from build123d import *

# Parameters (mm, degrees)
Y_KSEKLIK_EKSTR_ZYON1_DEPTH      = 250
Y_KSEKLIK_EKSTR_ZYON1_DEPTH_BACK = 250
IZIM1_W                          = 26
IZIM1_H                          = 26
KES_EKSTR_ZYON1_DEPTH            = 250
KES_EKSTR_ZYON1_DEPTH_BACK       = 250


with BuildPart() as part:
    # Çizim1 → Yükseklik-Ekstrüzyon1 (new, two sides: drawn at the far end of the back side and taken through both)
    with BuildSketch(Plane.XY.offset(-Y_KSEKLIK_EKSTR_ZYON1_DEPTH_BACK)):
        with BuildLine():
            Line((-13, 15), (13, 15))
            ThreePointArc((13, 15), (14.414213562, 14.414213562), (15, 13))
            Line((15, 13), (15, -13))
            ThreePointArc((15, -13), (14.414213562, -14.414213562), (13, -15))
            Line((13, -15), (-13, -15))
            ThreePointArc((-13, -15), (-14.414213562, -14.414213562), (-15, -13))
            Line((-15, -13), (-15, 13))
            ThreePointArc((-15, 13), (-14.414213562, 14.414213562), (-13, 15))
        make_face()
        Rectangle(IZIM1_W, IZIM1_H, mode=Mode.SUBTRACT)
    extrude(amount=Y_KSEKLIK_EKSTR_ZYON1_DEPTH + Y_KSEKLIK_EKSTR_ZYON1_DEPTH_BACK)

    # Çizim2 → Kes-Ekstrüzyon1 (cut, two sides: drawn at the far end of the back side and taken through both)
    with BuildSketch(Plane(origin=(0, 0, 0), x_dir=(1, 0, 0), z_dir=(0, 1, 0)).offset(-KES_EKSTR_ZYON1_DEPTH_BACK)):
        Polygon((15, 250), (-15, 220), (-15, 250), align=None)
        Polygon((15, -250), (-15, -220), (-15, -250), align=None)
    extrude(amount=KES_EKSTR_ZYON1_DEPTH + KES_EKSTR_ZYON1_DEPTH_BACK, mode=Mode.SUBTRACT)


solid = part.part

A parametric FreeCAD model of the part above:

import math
import FreeCAD as App
import Part
import Sketcher
from FreeCAD import Vector


def add_polygon(sketch, points):
    """Adds a closed chain of lines whose ends are joined by coincident constraints."""
    first, n = sketch.GeometryCount, len(points)
    for a, b in zip(points, points[1:] + points[:1]):
        sketch.addGeometry(Part.LineSegment(App.Vector(*a, 0), App.Vector(*b, 0)), False)
    for i in range(n):
        sketch.addConstraint(Sketcher.Constraint("Coincident", first + i, 2, first + (i + 1) % n, 1))

doc = App.newDocument("Part")
body = doc.addObject("PartDesign::Body", "Body")

sketch1 = body.newObject("Sketcher::SketchObject", "Sketch")
sketch1.AttachmentSupport = (doc.getObject("XY_Plane"), [""])
sketch1.MapMode = "FlatFace"
sketch1.addGeometry(Part.LineSegment(Vector(13, 15, 0), Vector(-13, 15, 0)), False)
sketch1.addGeometry(Part.ArcOfCircle(Part.Circle(Vector(-13, 13, 0), Vector(0, 0, 1), 2), math.radians(90), math.radians(180)), False)
sketch1.addGeometry(Part.LineSegment(Vector(-15, 13, 0), Vector(-15, -13, 0)), False)
sketch1.addGeometry(Part.ArcOfCircle(Part.Circle(Vector(-13, -13, 0), Vector(0, 0, 1), 2), math.radians(-180), math.radians(-90)), False)
sketch1.addGeometry(Part.LineSegment(Vector(-13, -15, 0), Vector(13, -15, 0)), False)
sketch1.addGeometry(Part.ArcOfCircle(Part.Circle(Vector(13, -13, 0), Vector(0, 0, 1), 2), math.radians(-90), math.radians(0)), False)
sketch1.addGeometry(Part.LineSegment(Vector(15, -13, 0), Vector(15, 13, 0)), False)
sketch1.addGeometry(Part.ArcOfCircle(Part.Circle(Vector(13, 13, 0), Vector(0, 0, 1), 2), math.radians(0), math.radians(90)), False)
add_polygon(sketch1, [(-13, -13), (-13, 13), (13, 13), (13, -13)])
sketch1.addConstraint(Sketcher.Constraint("Tangent", 0, 2, 1, 1))
sketch1.addConstraint(Sketcher.Constraint("Tangent", 1, 2, 2, 1))
sketch1.addConstraint(Sketcher.Constraint("Tangent", 2, 2, 3, 1))
sketch1.addConstraint(Sketcher.Constraint("Tangent", 3, 2, 4, 1))
sketch1.addConstraint(Sketcher.Constraint("Tangent", 4, 2, 5, 1))
sketch1.addConstraint(Sketcher.Constraint("Tangent", 5, 2, 6, 1))
sketch1.addConstraint(Sketcher.Constraint("Tangent", 6, 2, 7, 1))
sketch1.addConstraint(Sketcher.Constraint("Tangent", 7, 2, 0, 1))
sketch1.addConstraint(Sketcher.Constraint("Horizontal", 0))
sketch1.addConstraint(Sketcher.Constraint("Vertical", 2))
sketch1.addConstraint(Sketcher.Constraint("Horizontal", 4))
sketch1.addConstraint(Sketcher.Constraint("Vertical", 6))
sketch1.addConstraint(Sketcher.Constraint("Vertical", 8))
sketch1.addConstraint(Sketcher.Constraint("Horizontal", 9))
sketch1.addConstraint(Sketcher.Constraint("Vertical", 10))
sketch1.addConstraint(Sketcher.Constraint("Horizontal", 11))
sketch1.addConstraint(Sketcher.Constraint("Coincident", 8, 2, 1, 3))
sketch1.addConstraint(Sketcher.Constraint("Coincident", 9, 2, 7, 3))
sketch1.addConstraint(Sketcher.Constraint("Coincident", 10, 2, 5, 3))
sketch1.addConstraint(Sketcher.Constraint("Equal", 1, 3))
sketch1.addConstraint(Sketcher.Constraint("Symmetric", 1, 3, 5, 3, -1, 1))
sketch1.addConstraint(Sketcher.Constraint("Equal", 11, 2))
sketch1.addConstraint(Sketcher.Constraint("Radius", 1, 2.0))
sketch1.addConstraint(Sketcher.Constraint("DistanceX", 0, 2, 0, 1, 26.0))
pad1 = body.newObject("PartDesign::Pad", "Pad")
pad1.Profile = sketch1
pad1.Type = "TwoLengths"
pad1.Length = 250
pad1.Length2 = 250

sketch2 = body.newObject("Sketcher::SketchObject", "Sketch001")
sketch2.AttachmentSupport = (doc.getObject("XZ_Plane"), [""])
sketch2.MapMode = "FlatFace"
add_polygon(sketch2, [(-15, -220), (15, -250), (-15, -250)])
add_polygon(sketch2, [(15, 250), (-15, 220), (-15, 250)])
sketch2.addConstraint(Sketcher.Constraint("Horizontal", 1))
sketch2.addConstraint(Sketcher.Constraint("Vertical", 2))
sketch2.addConstraint(Sketcher.Constraint("Vertical", 4))
sketch2.addConstraint(Sketcher.Constraint("Horizontal", 5))
sketch2.addConstraint(Sketcher.Constraint("Symmetric", 0, 2, 4, 2, -1, 1))
sketch2.addConstraint(Sketcher.Constraint("Symmetric", 2, 2, 3, 2, -1))
sketch2.addConstraint(Sketcher.Constraint("Perpendicular", 0, 3))
sketch2.addConstraint(Sketcher.Constraint("Vertical", 0, 2, 5, 2))
sketch2.addConstraint(Sketcher.Constraint("DistanceX", 1, 2, 1, 1, 30.0))
sketch2.addConstraint(Sketcher.Constraint("DistanceY", 0, 2, -1, 1, 250.0))
pocket1 = body.newObject("PartDesign::Pocket", "Pocket")
pocket1.Profile = sketch2
pocket1.Type = "ThroughAll"
pocket1.Midplane = True

doc.recompute()
